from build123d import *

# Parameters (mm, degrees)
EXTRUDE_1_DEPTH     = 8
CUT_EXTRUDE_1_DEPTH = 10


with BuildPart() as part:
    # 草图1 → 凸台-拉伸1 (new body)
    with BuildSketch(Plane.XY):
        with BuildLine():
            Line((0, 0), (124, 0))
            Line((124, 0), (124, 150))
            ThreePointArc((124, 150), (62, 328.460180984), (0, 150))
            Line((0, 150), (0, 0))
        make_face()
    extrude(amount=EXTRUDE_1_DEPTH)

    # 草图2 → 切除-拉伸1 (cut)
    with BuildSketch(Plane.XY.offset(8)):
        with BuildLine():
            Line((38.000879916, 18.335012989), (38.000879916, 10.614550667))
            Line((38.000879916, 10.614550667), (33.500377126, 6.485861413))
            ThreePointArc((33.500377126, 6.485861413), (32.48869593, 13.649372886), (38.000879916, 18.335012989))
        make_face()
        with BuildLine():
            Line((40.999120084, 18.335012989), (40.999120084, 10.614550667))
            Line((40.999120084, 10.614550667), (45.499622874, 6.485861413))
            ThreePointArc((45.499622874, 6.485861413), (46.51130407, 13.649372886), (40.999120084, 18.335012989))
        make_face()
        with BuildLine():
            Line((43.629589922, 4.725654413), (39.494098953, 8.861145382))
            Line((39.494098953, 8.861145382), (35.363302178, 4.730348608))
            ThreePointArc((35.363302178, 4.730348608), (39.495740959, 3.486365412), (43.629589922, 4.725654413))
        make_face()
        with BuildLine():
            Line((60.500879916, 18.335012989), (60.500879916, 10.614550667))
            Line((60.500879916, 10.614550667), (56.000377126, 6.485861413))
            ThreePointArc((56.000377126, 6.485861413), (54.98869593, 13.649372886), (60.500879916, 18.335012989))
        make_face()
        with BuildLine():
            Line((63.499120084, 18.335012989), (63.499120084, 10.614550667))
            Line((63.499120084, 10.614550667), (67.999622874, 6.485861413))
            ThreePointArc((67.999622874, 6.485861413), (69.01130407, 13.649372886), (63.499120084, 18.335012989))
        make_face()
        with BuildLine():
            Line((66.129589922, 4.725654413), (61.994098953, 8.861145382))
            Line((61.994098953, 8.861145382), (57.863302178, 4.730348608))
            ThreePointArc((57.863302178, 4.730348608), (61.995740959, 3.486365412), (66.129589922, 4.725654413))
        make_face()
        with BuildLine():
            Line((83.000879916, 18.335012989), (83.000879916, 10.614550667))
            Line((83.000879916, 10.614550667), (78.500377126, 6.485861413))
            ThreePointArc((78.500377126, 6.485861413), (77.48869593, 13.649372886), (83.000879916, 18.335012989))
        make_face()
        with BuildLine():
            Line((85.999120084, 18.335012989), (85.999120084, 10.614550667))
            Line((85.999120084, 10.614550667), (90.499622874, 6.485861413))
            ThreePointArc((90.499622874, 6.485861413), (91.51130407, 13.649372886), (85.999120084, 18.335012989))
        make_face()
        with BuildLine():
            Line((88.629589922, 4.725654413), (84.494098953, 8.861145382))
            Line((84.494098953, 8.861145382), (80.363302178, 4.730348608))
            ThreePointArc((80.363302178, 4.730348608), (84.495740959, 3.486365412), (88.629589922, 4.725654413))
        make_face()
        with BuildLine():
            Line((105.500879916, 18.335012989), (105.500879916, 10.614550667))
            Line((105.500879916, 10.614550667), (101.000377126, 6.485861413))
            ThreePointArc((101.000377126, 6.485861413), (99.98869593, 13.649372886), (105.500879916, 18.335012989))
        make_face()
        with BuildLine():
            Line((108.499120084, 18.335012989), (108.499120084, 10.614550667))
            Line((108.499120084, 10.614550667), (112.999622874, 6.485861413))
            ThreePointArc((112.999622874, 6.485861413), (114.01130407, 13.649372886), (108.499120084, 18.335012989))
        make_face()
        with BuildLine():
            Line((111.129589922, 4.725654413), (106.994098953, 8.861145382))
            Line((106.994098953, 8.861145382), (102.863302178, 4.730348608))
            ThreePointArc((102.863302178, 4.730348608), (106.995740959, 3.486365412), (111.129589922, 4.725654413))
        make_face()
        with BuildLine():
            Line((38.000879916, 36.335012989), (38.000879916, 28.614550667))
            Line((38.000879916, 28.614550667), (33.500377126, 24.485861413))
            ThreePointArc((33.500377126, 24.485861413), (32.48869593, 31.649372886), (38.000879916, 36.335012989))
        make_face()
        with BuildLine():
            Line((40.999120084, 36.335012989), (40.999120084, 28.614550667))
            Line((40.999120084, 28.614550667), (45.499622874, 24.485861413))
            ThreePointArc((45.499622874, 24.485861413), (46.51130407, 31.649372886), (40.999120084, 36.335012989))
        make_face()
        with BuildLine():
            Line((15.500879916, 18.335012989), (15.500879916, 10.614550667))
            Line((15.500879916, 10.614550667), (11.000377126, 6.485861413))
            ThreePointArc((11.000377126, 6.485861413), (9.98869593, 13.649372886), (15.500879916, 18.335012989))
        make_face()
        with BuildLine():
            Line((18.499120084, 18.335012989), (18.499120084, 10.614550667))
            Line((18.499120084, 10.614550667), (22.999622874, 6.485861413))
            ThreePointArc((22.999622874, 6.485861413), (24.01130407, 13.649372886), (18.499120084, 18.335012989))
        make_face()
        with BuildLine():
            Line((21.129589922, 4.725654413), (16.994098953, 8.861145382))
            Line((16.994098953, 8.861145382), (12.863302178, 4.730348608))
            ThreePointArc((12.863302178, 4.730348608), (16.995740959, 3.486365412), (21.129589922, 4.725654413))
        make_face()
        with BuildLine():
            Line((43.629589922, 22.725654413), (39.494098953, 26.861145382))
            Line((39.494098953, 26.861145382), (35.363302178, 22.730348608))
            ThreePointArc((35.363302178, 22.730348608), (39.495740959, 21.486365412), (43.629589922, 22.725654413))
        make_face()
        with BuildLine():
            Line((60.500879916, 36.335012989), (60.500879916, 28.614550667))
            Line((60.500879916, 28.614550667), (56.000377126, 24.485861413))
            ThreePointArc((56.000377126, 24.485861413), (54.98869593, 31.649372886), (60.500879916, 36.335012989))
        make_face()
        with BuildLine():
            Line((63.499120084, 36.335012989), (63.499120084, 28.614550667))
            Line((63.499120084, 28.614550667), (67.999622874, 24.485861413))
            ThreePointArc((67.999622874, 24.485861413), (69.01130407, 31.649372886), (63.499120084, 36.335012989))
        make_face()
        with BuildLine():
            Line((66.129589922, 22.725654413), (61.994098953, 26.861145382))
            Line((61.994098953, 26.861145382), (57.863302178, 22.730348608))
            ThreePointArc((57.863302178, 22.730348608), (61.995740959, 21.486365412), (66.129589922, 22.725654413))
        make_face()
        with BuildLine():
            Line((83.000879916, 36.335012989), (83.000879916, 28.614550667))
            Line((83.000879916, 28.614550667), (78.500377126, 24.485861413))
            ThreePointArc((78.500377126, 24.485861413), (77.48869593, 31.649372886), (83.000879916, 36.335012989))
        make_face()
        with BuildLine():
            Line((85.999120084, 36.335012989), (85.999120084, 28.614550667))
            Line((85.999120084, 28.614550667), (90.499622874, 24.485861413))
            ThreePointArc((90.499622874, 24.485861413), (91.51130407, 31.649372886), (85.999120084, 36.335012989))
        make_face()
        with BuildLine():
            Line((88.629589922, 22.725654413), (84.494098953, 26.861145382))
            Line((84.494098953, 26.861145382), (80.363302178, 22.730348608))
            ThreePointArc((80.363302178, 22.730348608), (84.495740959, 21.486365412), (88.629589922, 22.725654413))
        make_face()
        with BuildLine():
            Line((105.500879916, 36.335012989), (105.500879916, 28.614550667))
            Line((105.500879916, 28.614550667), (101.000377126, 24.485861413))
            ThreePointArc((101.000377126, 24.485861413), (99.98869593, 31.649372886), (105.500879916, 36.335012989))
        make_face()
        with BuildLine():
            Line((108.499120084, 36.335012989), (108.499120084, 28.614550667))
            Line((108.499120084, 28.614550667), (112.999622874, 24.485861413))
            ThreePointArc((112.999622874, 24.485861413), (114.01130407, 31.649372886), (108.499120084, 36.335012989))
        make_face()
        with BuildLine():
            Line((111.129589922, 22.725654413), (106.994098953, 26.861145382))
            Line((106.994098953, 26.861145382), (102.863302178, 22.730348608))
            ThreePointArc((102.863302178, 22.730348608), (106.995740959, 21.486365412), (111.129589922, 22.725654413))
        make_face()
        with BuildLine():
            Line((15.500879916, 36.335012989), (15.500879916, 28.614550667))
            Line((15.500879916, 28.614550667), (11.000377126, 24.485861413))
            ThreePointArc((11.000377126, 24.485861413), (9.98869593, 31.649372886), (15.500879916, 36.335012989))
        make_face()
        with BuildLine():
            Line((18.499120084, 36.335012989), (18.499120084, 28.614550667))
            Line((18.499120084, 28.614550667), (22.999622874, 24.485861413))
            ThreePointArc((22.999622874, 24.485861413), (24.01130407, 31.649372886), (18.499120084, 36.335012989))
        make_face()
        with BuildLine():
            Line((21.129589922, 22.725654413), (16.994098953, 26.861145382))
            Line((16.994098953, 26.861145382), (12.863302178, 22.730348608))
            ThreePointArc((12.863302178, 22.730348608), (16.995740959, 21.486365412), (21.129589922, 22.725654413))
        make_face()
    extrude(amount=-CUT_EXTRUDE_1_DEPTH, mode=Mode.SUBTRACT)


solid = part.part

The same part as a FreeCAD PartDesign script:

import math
import FreeCAD as App
import Part
import Sketcher
from FreeCAD import Vector
Q = App.Units.Quantity

doc = App.newDocument("Part")
params = doc.addObject("Spreadsheet::Sheet", "Params")
for row, (alias, value) in enumerate([
    ("sketch1_radius", "100 mm"),
    ("sketch1_width", "124 mm"),
    ("sketch1_height", "150 mm"),
    ("pad1_length", "8 mm"),
    ("sketch2_radius", "7.5 mm"),
    ("pocket1_length", "10 mm"),
], start=1):
    params.set(f"A{row}", alias)
    params.set(f"B{row}", "=" + value)
    params.setAlias(f"B{row}", alias)

body = doc.addObject("PartDesign::Body", "Body")

# Sketch on XY plane
sketch1 = body.newObject("Sketcher::SketchObject", "Sketch")
sketch1.AttachmentSupport = (doc.getObject("XY_Plane"), [""])
sketch1.MapMode = "FlatFace"
sketch1.addGeometry([
    Part.LineSegment(Vector(0, 0, 0), Vector(124, 0, 0)),
    Part.LineSegment(Vector(124, 0, 0), Vector(124, 150, 0)),
    Part.ArcOfCircle(Part.Circle(Vector(62, 228.460181, 0), Vector(0, 0, 1), 100), math.radians(-51.683866), math.radians(231.683866)),
    Part.LineSegment(Vector(0, 150, 0), Vector(0, 0, 0)),
], False)
sketch1.addConstraint([
    Sketcher.Constraint("Coincident", 0, 2, 1, 1),
    Sketcher.Constraint("Coincident", 1, 2, 2, 1),
    Sketcher.Constraint("Coincident", 2, 2, 3, 1),
    Sketcher.Constraint("Coincident", 3, 2, 0, 1),
    Sketcher.Constraint("Horizontal", 0),
    Sketcher.Constraint("Vertical", 1),
    Sketcher.Constraint("Vertical", 3),
    Sketcher.Constraint("Coincident", 3, 2, -1, 1),
    Sketcher.Constraint("Horizontal", 1, 2, 2, 2),
    Sketcher.Constraint("Radius", 2, Q("100 mm")),
    Sketcher.Constraint("DistanceX", 0, 1, 0, 2, Q("124 mm")),
    Sketcher.Constraint("DistanceY", 1, 1, 1, 2, Q("150 mm")),
])
sketch1.setExpression("Constraints[9]", "Params.sketch1_radius")
sketch1.setExpression("Constraints[10]", "Params.sketch1_width")
sketch1.setExpression("Constraints[11]", "Params.sketch1_height")
pad1 = body.newObject("PartDesign::Pad", "Pad")
pad1.Profile = sketch1
pad1.setExpression("Length", "Params.pad1_length")

# Sketch on XY plane
sketch2 = body.newObject("Sketcher::SketchObject", "Sketch001")
sketch2.AttachmentSupport = (doc.getObject("XY_Plane"), [""])
sketch2.MapMode = "FlatFace"
sketch2.AttachmentOffset = App.Placement(Vector(0, 0, 8), App.Rotation())
sketch2.addGeometry([
    Part.LineSegment(Vector(38.00088, 10.614551, 0), Vector(38.00088, 18.335013, 0)),  # 0
    Part.ArcOfCircle(Part.Circle(Vector(39.5, 10.986364, 0), Vector(0, 0, 1), 7.5), math.radians(101.530098), math.radians(216.874699)),  # 1
    Part.LineSegment(Vector(33.500377, 6.485861, 0), Vector(38.00088, 10.614551, 0)),  # 2
    Part.LineSegment(Vector(40.99912, 18.335013, 0), Vector(40.99912, 10.614551, 0)),  # 3
    Part.LineSegment(Vector(40.99912, 10.614551, 0), Vector(45.499623, 6.485861, 0)),  # 4
    Part.ArcOfCircle(Part.Circle(Vector(39.5, 10.986364, 0), Vector(0, 0, 1), 7.5), math.radians(-36.874699), math.radians(78.469902)),  # 5
    Part.LineSegment(Vector(43.62959, 4.725654, 0), Vector(39.494099, 8.861145, 0)),  # 6
    Part.LineSegment(Vector(39.494099, 8.861145, 0), Vector(35.363302, 4.730349, 0)),  # 7
    Part.ArcOfCircle(Part.Circle(Vector(39.5, 10.986364, 0), Vector(0, 0, 1), 7.5), math.radians(-123.474082), math.radians(-56.590992)),  # 8
    Part.LineSegment(Vector(60.50088, 10.614551, 0), Vector(60.50088, 18.335013, 0)),  # 9
    Part.ArcOfCircle(Part.Circle(Vector(62, 10.986364, 0), Vector(0, 0, 1), 7.5), math.radians(101.530098), math.radians(216.874699)),  # 10
    Part.LineSegment(Vector(56.000377, 6.485861, 0), Vector(60.50088, 10.614551, 0)),  # 11
    Part.LineSegment(Vector(63.49912, 18.335013, 0), Vector(63.49912, 10.614551, 0)),  # 12
    Part.LineSegment(Vector(63.49912, 10.614551, 0), Vector(67.999623, 6.485861, 0)),  # 13
    Part.ArcOfCircle(Part.Circle(Vector(62, 10.986364, 0), Vector(0, 0, 1), 7.5), math.radians(-36.874699), math.radians(78.469902)),  # 14
    Part.LineSegment(Vector(66.12959, 4.725654, 0), Vector(61.994099, 8.861145, 0)),  # 15
    Part.LineSegment(Vector(61.994099, 8.861145, 0), Vector(57.863302, 4.730349, 0)),  # 16
    Part.ArcOfCircle(Part.Circle(Vector(62, 10.986364, 0), Vector(0, 0, 1), 7.5), math.radians(-123.474082), math.radians(-56.590992)),  # 17
    Part.LineSegment(Vector(83.00088, 10.614551, 0), Vector(83.00088, 18.335013, 0)),  # 18
    Part.ArcOfCircle(Part.Circle(Vector(84.5, 10.986364, 0), Vector(0, 0, 1), 7.5), math.radians(101.530098), math.radians(216.874699)),  # 19
    Part.LineSegment(Vector(78.500377, 6.485861, 0), Vector(83.00088, 10.614551, 0)),  # 20
    Part.LineSegment(Vector(85.99912, 18.335013, 0), Vector(85.99912, 10.614551, 0)),  # 21
    Part.LineSegment(Vector(85.99912, 10.614551, 0), Vector(90.499623, 6.485861, 0)),  # 22
    Part.ArcOfCircle(Part.Circle(Vector(84.5, 10.986364, 0), Vector(0, 0, 1), 7.5), math.radians(-36.874699), math.radians(78.469902)),  # 23
    Part.LineSegment(Vector(88.62959, 4.725654, 0), Vector(84.494099, 8.861145, 0)),  # 24
    Part.LineSegment(Vector(84.494099, 8.861145, 0), Vector(80.363302, 4.730349, 0)),  # 25
    Part.ArcOfCircle(Part.Circle(Vector(84.5, 10.986364, 0), Vector(0, 0, 1), 7.5), math.radians(-123.474082), math.radians(-56.590992)),  # 26
    Part.LineSegment(Vector(105.50088, 10.614551, 0), Vector(105.50088, 18.335013, 0)),  # 27
    Part.ArcOfCircle(Part.Circle(Vector(107, 10.986364, 0), Vector(0, 0, 1), 7.5), math.radians(101.530098), math.radians(216.874699)),  # 28
    Part.LineSegment(Vector(101.000377, 6.485861, 0), Vector(105.50088, 10.614551, 0)),  # 29
    Part.LineSegment(Vector(108.49912, 18.335013, 0), Vector(108.49912, 10.614551, 0)),  # 30
    Part.LineSegment(Vector(108.49912, 10.614551, 0), Vector(112.999623, 6.485861, 0)),  # 31
    Part.ArcOfCircle(Part.Circle(Vector(107, 10.986364, 0), Vector(0, 0, 1), 7.5), math.radians(-36.874699), math.radians(78.469902)),  # 32
    Part.LineSegment(Vector(111.12959, 4.725654, 0), Vector(106.994099, 8.861145, 0)),  # 33
    Part.LineSegment(Vector(106.994099, 8.861145, 0), Vector(102.863302, 4.730349, 0)),  # 34
    Part.ArcOfCircle(Part.Circle(Vector(107, 10.986364, 0), Vector(0, 0, 1), 7.5), math.radians(-123.474082), math.radians(-56.590992)),  # 35
    Part.LineSegment(Vector(38.00088, 28.614551, 0), Vector(38.00088, 36.335013, 0)),  # 36
    Part.ArcOfCircle(Part.Circle(Vector(39.5, 28.986364, 0), Vector(0, 0, 1), 7.5), math.radians(101.530098), math.radians(216.874699)),  # 37
    Part.LineSegment(Vector(33.500377, 24.485861, 0), Vector(38.00088, 28.614551, 0)),  # 38
    Part.LineSegment(Vector(40.99912, 36.335013, 0), Vector(40.99912, 28.614551, 0)),  # 39
    Part.LineSegment(Vector(40.99912, 28.614551, 0), Vector(45.499623, 24.485861, 0)),  # 40
    Part.ArcOfCircle(Part.Circle(Vector(39.5, 28.986364, 0), Vector(0, 0, 1), 7.5), math.radians(-36.874699), math.radians(78.469902)),  # 41
    Part.LineSegment(Vector(15.50088, 10.614551, 0), Vector(15.50088, 18.335013, 0)),  # 42
    Part.ArcOfCircle(Part.Circle(Vector(17, 10.986364, 0), Vector(0, 0, 1), 7.5), math.radians(101.530098), math.radians(216.874699)),  # 43
    Part.LineSegment(Vector(11.000377, 6.485861, 0), Vector(15.50088, 10.614551, 0)),  # 44
    Part.LineSegment(Vector(18.49912, 18.335013, 0), Vector(18.49912, 10.614551, 0)),  # 45
    Part.LineSegment(Vector(18.49912, 10.614551, 0), Vector(22.999623, 6.485861, 0)),  # 46
    Part.ArcOfCircle(Part.Circle(Vector(17, 10.986364, 0), Vector(0, 0, 1), 7.5), math.radians(-36.874699), math.radians(78.469902)),  # 47
    Part.LineSegment(Vector(21.12959, 4.725654, 0), Vector(16.994099, 8.861145, 0)),  # 48
    Part.LineSegment(Vector(16.994099, 8.861145, 0), Vector(12.863302, 4.730349, 0)),  # 49
    Part.ArcOfCircle(Part.Circle(Vector(17, 10.986364, 0), Vector(0, 0, 1), 7.5), math.radians(-123.474082), math.radians(-56.590992)),  # 50
    Part.LineSegment(Vector(43.62959, 22.725654, 0), Vector(39.494099, 26.861145, 0)),  # 51
    Part.LineSegment(Vector(39.494099, 26.861145, 0), Vector(35.363302, 22.730349, 0)),  # 52
    Part.ArcOfCircle(Part.Circle(Vector(39.5, 28.986364, 0), Vector(0, 0, 1), 7.5), math.radians(-123.474082), math.radians(-56.590992)),  # 53
    Part.LineSegment(Vector(60.50088, 28.614551, 0), Vector(60.50088, 36.335013, 0)),  # 54
    Part.ArcOfCircle(Part.Circle(Vector(62, 28.986364, 0), Vector(0, 0, 1), 7.5), math.radians(101.530098), math.radians(216.874699)),  # 55
    Part.LineSegment(Vector(56.000377, 24.485861, 0), Vector(60.50088, 28.614551, 0)),  # 56
    Part.LineSegment(Vector(63.49912, 36.335013, 0), Vector(63.49912, 28.614551, 0)),  # 57
    Part.LineSegment(Vector(63.49912, 28.614551, 0), Vector(67.999623, 24.485861, 0)),  # 58
    Part.ArcOfCircle(Part.Circle(Vector(62, 28.986364, 0), Vector(0, 0, 1), 7.5), math.radians(-36.874699), math.radians(78.469902)),  # 59
    Part.LineSegment(Vector(66.12959, 22.725654, 0), Vector(61.994099, 26.861145, 0)),  # 60
    Part.LineSegment(Vector(61.994099, 26.861145, 0), Vector(57.863302, 22.730349, 0)),  # 61
    Part.ArcOfCircle(Part.Circle(Vector(62, 28.986364, 0), Vector(0, 0, 1), 7.5), math.radians(-123.474082), math.radians(-56.590992)),  # 62
    Part.LineSegment(Vector(83.00088, 28.614551, 0), Vector(83.00088, 36.335013, 0)),  # 63
    Part.ArcOfCircle(Part.Circle(Vector(84.5, 28.986364, 0), Vector(0, 0, 1), 7.5), math.radians(101.530098), math.radians(216.874699)),  # 64
    Part.LineSegment(Vector(78.500377, 24.485861, 0), Vector(83.00088, 28.614551, 0)),  # 65
    Part.LineSegment(Vector(85.99912, 36.335013, 0), Vector(85.99912, 28.614551, 0)),  # 66
    Part.LineSegment(Vector(85.99912, 28.614551, 0), Vector(90.499623, 24.485861, 0)),  # 67
    Part.ArcOfCircle(Part.Circle(Vector(84.5, 28.986364, 0), Vector(0, 0, 1), 7.5), math.radians(-36.874699), math.radians(78.469902)),  # 68
    Part.LineSegment(Vector(88.62959, 22.725654, 0), Vector(84.494099, 26.861145, 0)),  # 69
    Part.LineSegment(Vector(84.494099, 26.861145, 0), Vector(80.363302, 22.730349, 0)),  # 70
    Part.ArcOfCircle(Part.Circle(Vector(84.5, 28.986364, 0), Vector(0, 0, 1), 7.5), math.radians(-123.474082), math.radians(-56.590992)),  # 71
    Part.LineSegment(Vector(105.50088, 28.614551, 0), Vector(105.50088, 36.335013, 0)),  # 72
    Part.ArcOfCircle(Part.Circle(Vector(107, 28.986364, 0), Vector(0, 0, 1), 7.5), math.radians(101.530098), math.radians(216.874699)),  # 73
    Part.LineSegment(Vector(101.000377, 24.485861, 0), Vector(105.50088, 28.614551, 0)),  # 74
    Part.LineSegment(Vector(108.49912, 36.335013, 0), Vector(108.49912, 28.614551, 0)),  # 75
    Part.LineSegment(Vector(108.49912, 28.614551, 0), Vector(112.999623, 24.485861, 0)),  # 76
    Part.ArcOfCircle(Part.Circle(Vector(107, 28.986364, 0), Vector(0, 0, 1), 7.5), math.radians(-36.874699), math.radians(78.469902)),  # 77
    Part.LineSegment(Vector(111.12959, 22.725654, 0), Vector(106.994099, 26.861145, 0)),  # 78
    Part.LineSegment(Vector(106.994099, 26.861145, 0), Vector(102.863302, 22.730349, 0)),  # 79
    Part.ArcOfCircle(Part.Circle(Vector(107, 28.986364, 0), Vector(0, 0, 1), 7.5), math.radians(-123.474082), math.radians(-56.590992)),  # 80
    Part.LineSegment(Vector(15.50088, 28.614551, 0), Vector(15.50088, 36.335013, 0)),  # 81
    Part.ArcOfCircle(Part.Circle(Vector(17, 28.986364, 0), Vector(0, 0, 1), 7.5), math.radians(101.530098), math.radians(216.874699)),  # 82
    Part.LineSegment(Vector(11.000377, 24.485861, 0), Vector(15.50088, 28.614551, 0)),  # 83
    Part.LineSegment(Vector(18.49912, 36.335013, 0), Vector(18.49912, 28.614551, 0)),  # 84
    Part.LineSegment(Vector(18.49912, 28.614551, 0), Vector(22.999623, 24.485861, 0)),  # 85
    Part.ArcOfCircle(Part.Circle(Vector(17, 28.986364, 0), Vector(0, 0, 1), 7.5), math.radians(-36.874699), math.radians(78.469902)),  # 86
    Part.LineSegment(Vector(21.12959, 22.725654, 0), Vector(16.994099, 26.861145, 0)),  # 87
    Part.LineSegment(Vector(16.994099, 26.861145, 0), Vector(12.863302, 22.730349, 0)),  # 88
    Part.ArcOfCircle(Part.Circle(Vector(17, 28.986364, 0), Vector(0, 0, 1), 7.5), math.radians(-123.474082), math.radians(-56.590992)),  # 89
], False)
sketch2.addConstraint([
    Sketcher.Constraint("Coincident", 0, 2, 1, 1),
    Sketcher.Constraint("Coincident", 1, 2, 2, 1),
    Sketcher.Constraint("Coincident", 2, 2, 0, 1),
    Sketcher.Constraint("Coincident", 3, 2, 4, 1),
    Sketcher.Constraint("Coincident", 4, 2, 5, 1),
    Sketcher.Constraint("Coincident", 5, 2, 3, 1),
    Sketcher.Constraint("Coincident", 6, 2, 7, 1),
    Sketcher.Constraint("Coincident", 7, 2, 8, 1),
    Sketcher.Constraint("Coincident", 8, 2, 6, 1),
    Sketcher.Constraint("Coincident", 9, 2, 10, 1),
    Sketcher.Constraint("Coincident", 10, 2, 11, 1),
    Sketcher.Constraint("Coincident", 11, 2, 9, 1),
    Sketcher.Constraint("Coincident", 12, 2, 13, 1),
    Sketcher.Constraint("Coincident", 13, 2, 14, 1),
    Sketcher.Constraint("Coincident", 14, 2, 12, 1),
    Sketcher.Constraint("Coincident", 15, 2, 16, 1),
    Sketcher.Constraint("Coincident", 16, 2, 17, 1),
    Sketcher.Constraint("Coincident", 17, 2, 15, 1),
    Sketcher.Constraint("Coincident", 18, 2, 19, 1),
    Sketcher.Constraint("Coincident", 19, 2, 20, 1),
    Sketcher.Constraint("Coincident", 20, 2, 18, 1),
    Sketcher.Constraint("Coincident", 21, 2, 22, 1),
    Sketcher.Constraint("Coincident", 22, 2, 23, 1),
    Sketcher.Constraint("Coincident", 23, 2, 21, 1),
    Sketcher.Constraint("Coincident", 24, 2, 25, 1),
    Sketcher.Constraint("Coincident", 25, 2, 26, 1),
    Sketcher.Constraint("Coincident", 26, 2, 24, 1),
    Sketcher.Constraint("Coincident", 27, 2, 28, 1),
    Sketcher.Constraint("Coincident", 28, 2, 29, 1),
    Sketcher.Constraint("Coincident", 29, 2, 27, 1),
    Sketcher.Constraint("Coincident", 30, 2, 31, 1),
    Sketcher.Constraint("Coincident", 31, 2, 32, 1),
    Sketcher.Constraint("Coincident", 32, 2, 30, 1),
    Sketcher.Constraint("Coincident", 33, 2, 34, 1),
    Sketcher.Constraint("Coincident", 34, 2, 35, 1),
    Sketcher.Constraint("Coincident", 35, 2, 33, 1),
    Sketcher.Constraint("Coincident", 36, 2, 37, 1),
    Sketcher.Constraint("Coincident", 37, 2, 38, 1),
    Sketcher.Constraint("Coincident", 38, 2, 36, 1),
    Sketcher.Constraint("Coincident", 39, 2, 40, 1),
    Sketcher.Constraint("Coincident", 40, 2, 41, 1),
    Sketcher.Constraint("Coincident", 41, 2, 39, 1),
    Sketcher.Constraint("Coincident", 42, 2, 43, 1),
    Sketcher.Constraint("Coincident", 43, 2, 44, 1),
    Sketcher.Constraint("Coincident", 44, 2, 42, 1),
    Sketcher.Constraint("Coincident", 45, 2, 46, 1),
    Sketcher.Constraint("Coincident", 46, 2, 47, 1),
    Sketcher.Constraint("Coincident", 47, 2, 45, 1),
    Sketcher.Constraint("Coincident", 48, 2, 49, 1),
    Sketcher.Constraint("Coincident", 49, 2, 50, 1),
    Sketcher.Constraint("Coincident", 50, 2, 48, 1),
    Sketcher.Constraint("Coincident", 51, 2, 52, 1),
    Sketcher.Constraint("Coincident", 52, 2, 53, 1),
    Sketcher.Constraint("Coincident", 53, 2, 51, 1),
    Sketcher.Constraint("Coincident", 54, 2, 55, 1),
    Sketcher.Constraint("Coincident", 55, 2, 56, 1),
    Sketcher.Constraint("Coincident", 56, 2, 54, 1),
    Sketcher.Constraint("Coincident", 57, 2, 58, 1),
    Sketcher.Constraint("Coincident", 58, 2, 59, 1),
    Sketcher.Constraint("Coincident", 59, 2, 57, 1),
    Sketcher.Constraint("Coincident", 60, 2, 61, 1),
    Sketcher.Constraint("Coincident", 61, 2, 62, 1),
    Sketcher.Constraint("Coincident", 62, 2, 60, 1),
    Sketcher.Constraint("Coincident", 63, 2, 64, 1),
    Sketcher.Constraint("Coincident", 64, 2, 65, 1),
    Sketcher.Constraint("Coincident", 65, 2, 63, 1),
    Sketcher.Constraint("Coincident", 66, 2, 67, 1),
    Sketcher.Constraint("Coincident", 67, 2, 68, 1),
    Sketcher.Constraint("Coincident", 68, 2, 66, 1),
    Sketcher.Constraint("Coincident", 69, 2, 70, 1),
    Sketcher.Constraint("Coincident", 70, 2, 71, 1),
    Sketcher.Constraint("Coincident", 71, 2, 69, 1),
    Sketcher.Constraint("Coincident", 72, 2, 73, 1),
    Sketcher.Constraint("Coincident", 73, 2, 74, 1),
    Sketcher.Constraint("Coincident", 74, 2, 72, 1),
    Sketcher.Constraint("Coincident", 75, 2, 76, 1),
    Sketcher.Constraint("Coincident", 76, 2, 77, 1),
    Sketcher.Constraint("Coincident", 77, 2, 75, 1),
    Sketcher.Constraint("Coincident", 78, 2, 79, 1),
    Sketcher.Constraint("Coincident", 79, 2, 80, 1),
    Sketcher.Constraint("Coincident", 80, 2, 78, 1),
    Sketcher.Constraint("Coincident", 81, 2, 82, 1),
    Sketcher.Constraint("Coincident", 82, 2, 83, 1),
    Sketcher.Constraint("Coincident", 83, 2, 81, 1),
    Sketcher.Constraint("Coincident", 84, 2, 85, 1),
    Sketcher.Constraint("Coincident", 85, 2, 86, 1),
    Sketcher.Constraint("Coincident", 86, 2, 84, 1),
    Sketcher.Constraint("Coincident", 87, 2, 88, 1),
    Sketcher.Constraint("Coincident", 88, 2, 89, 1),
    Sketcher.Constraint("Coincident", 89, 2, 87, 1),
    Sketcher.Constraint("Vertical", 0),
    Sketcher.Constraint("Vertical", 3),
    Sketcher.Constraint("Vertical", 9),
    Sketcher.Constraint("Vertical", 12),
    Sketcher.Constraint("Vertical", 18),
    Sketcher.Constraint("Vertical", 21),
    Sketcher.Constraint("Vertical", 27),
    Sketcher.Constraint("Vertical", 30),
    Sketcher.Constraint("Vertical", 36),
    Sketcher.Constraint("Vertical", 39),
    Sketcher.Constraint("Vertical", 42),
    Sketcher.Constraint("Vertical", 45),
    Sketcher.Constraint("Vertical", 54),
    Sketcher.Constraint("Vertical", 57),
    Sketcher.Constraint("Vertical", 63),
    Sketcher.Constraint("Vertical", 66),
    Sketcher.Constraint("Vertical", 72),
    Sketcher.Constraint("Vertical", 75),
    Sketcher.Constraint("Vertical", 81),
    Sketcher.Constraint("Vertical", 84),
    Sketcher.Constraint("Coincident", 5, 3, 1, 3),
    Sketcher.Constraint("Coincident", 8, 3, 1, 3),
    Sketcher.Constraint("Coincident", 14, 3, 10, 3),
    Sketcher.Constraint("Coincident", 17, 3, 10, 3),
    Sketcher.Constraint("Coincident", 23, 3, 19, 3),
    Sketcher.Constraint("Coincident", 26, 3, 19, 3),
    Sketcher.Constraint("Coincident", 32, 3, 28, 3),
    Sketcher.Constraint("Coincident", 35, 3, 28, 3),
    Sketcher.Constraint("Coincident", 41, 3, 37, 3),
    Sketcher.Constraint("Coincident", 47, 3, 43, 3),
    Sketcher.Constraint("Coincident", 50, 3, 43, 3),
    Sketcher.Constraint("Coincident", 53, 3, 37, 3),
    Sketcher.Constraint("Coincident", 59, 3, 55, 3),
    Sketcher.Constraint("Coincident", 62, 3, 55, 3),
    Sketcher.Constraint("Coincident", 68, 3, 64, 3),
    Sketcher.Constraint("Coincident", 71, 3, 64, 3),
    Sketcher.Constraint("Coincident", 77, 3, 73, 3),
    Sketcher.Constraint("Coincident", 80, 3, 73, 3),
    Sketcher.Constraint("Coincident", 86, 3, 82, 3),
    Sketcher.Constraint("Coincident", 89, 3, 82, 3),
    Sketcher.Constraint("Equal", 1, 5),
    Sketcher.Constraint("Equal", 5, 8),
    Sketcher.Constraint("Equal", 8, 10),
    Sketcher.Constraint("Equal", 10, 14),
    Sketcher.Constraint("Equal", 14, 17),
    Sketcher.Constraint("Equal", 17, 19),
    Sketcher.Constraint("Equal", 19, 23),
    Sketcher.Constraint("Equal", 23, 26),
    Sketcher.Constraint("Equal", 26, 28),
    Sketcher.Constraint("Equal", 28, 32),
    Sketcher.Constraint("Equal", 32, 35),
    Sketcher.Constraint("Equal", 35, 37),
    Sketcher.Constraint("Equal", 37, 41),
    Sketcher.Constraint("Equal", 41, 43),
    Sketcher.Constraint("Equal", 43, 47),
    Sketcher.Constraint("Equal", 47, 50),
    Sketcher.Constraint("Equal", 50, 53),
    Sketcher.Constraint("Equal", 53, 55),
    Sketcher.Constraint("Equal", 55, 59),
    Sketcher.Constraint("Equal", 59, 62),
    Sketcher.Constraint("Equal", 62, 64),
    Sketcher.Constraint("Equal", 64, 68),
    Sketcher.Constraint("Equal", 68, 71),
    Sketcher.Constraint("Equal", 71, 73),
    Sketcher.Constraint("Equal", 73, 77),
    Sketcher.Constraint("Equal", 77, 80),
    Sketcher.Constraint("Equal", 80, 82),
    Sketcher.Constraint("Equal", 82, 86),
    Sketcher.Constraint("Equal", 86, 89),
    Sketcher.Constraint("Perpendicular", 6, 7),
    Sketcher.Constraint("Parallel", 2, 11),
    Sketcher.Constraint("Parallel", 4, 13),
    Sketcher.Constraint("Perpendicular", 7, 15),
    Sketcher.Constraint("Perpendicular", 15, 16),
    Sketcher.Constraint("Parallel", 11, 20),
    Sketcher.Constraint("Parallel", 13, 22),
    Sketcher.Constraint("Perpendicular", 16, 24),
    Sketcher.Constraint("Perpendicular", 24, 25),
    Sketcher.Constraint("Parallel", 20, 29),
    Sketcher.Constraint("Parallel", 22, 31),
    Sketcher.Constraint("Perpendicular", 25, 33),
    Sketcher.Constraint("Perpendicular", 33, 34),
    Sketcher.Constraint("Parallel", 29, 38),
    Sketcher.Constraint("Parallel", 31, 40),
    Sketcher.Constraint("Parallel", 38, 44),
    Sketcher.Constraint("Parallel", 40, 46),
    Sketcher.Constraint("Perpendicular", 34, 48),
    Sketcher.Constraint("Perpendicular", 48, 49),
    Sketcher.Constraint("Perpendicular", 49, 51),
    Sketcher.Constraint("Perpendicular", 51, 52),
    Sketcher.Constraint("Parallel", 44, 56),
    Sketcher.Constraint("Parallel", 46, 58),
    Sketcher.Constraint("Perpendicular", 52, 60),
    Sketcher.Constraint("Perpendicular", 60, 61),
    Sketcher.Constraint("Parallel", 56, 65),
    Sketcher.Constraint("Parallel", 58, 67),
    Sketcher.Constraint("Perpendicular", 61, 69),
    Sketcher.Constraint("Perpendicular", 69, 70),
    Sketcher.Constraint("Parallel", 65, 74),
    Sketcher.Constraint("Parallel", 67, 76),
    Sketcher.Constraint("Perpendicular", 70, 78),
    Sketcher.Constraint("Perpendicular", 78, 79),
    Sketcher.Constraint("Parallel", 74, 83),
    Sketcher.Constraint("Parallel", 76, 85),
    Sketcher.Constraint("Perpendicular", 79, 87),
    Sketcher.Constraint("Perpendicular", 87, 88),
    Sketcher.Constraint("Horizontal", 8, 3, 10, 3),
    Sketcher.Constraint("Horizontal", 17, 3, 19, 3),
    Sketcher.Constraint("Horizontal", 26, 3, 28, 3),
    Sketcher.Constraint("Horizontal", 35, 3, 43, 3),
    Sketcher.Constraint("Horizontal", 53, 3, 55, 3),
    Sketcher.Constraint("Horizontal", 62, 3, 64, 3),
    Sketcher.Constraint("Horizontal", 71, 3, 73, 3),
    Sketcher.Constraint("Horizontal", 80, 3, 82, 3),
    Sketcher.Constraint("Horizontal", 2, 2, 3, 2),
    Sketcher.Constraint("Horizontal", 1, 2, 4, 2),
    Sketcher.Constraint("Horizontal", 0, 2, 5, 2),
    Sketcher.Constraint("Horizontal", 5, 2, 9, 2),
    Sketcher.Constraint("Horizontal", 4, 2, 10, 2),
    Sketcher.Constraint("Horizontal", 11, 2, 12, 2),
    Sketcher.Constraint("Horizontal", 10, 2, 13, 2),
    Sketcher.Constraint("Horizontal", 6, 2, 15, 2),
    Sketcher.Constraint("Horizontal", 7, 2, 16, 2),
    Sketcher.Constraint("Horizontal", 14, 2, 18, 2),
    Sketcher.Constraint("Horizontal", 13, 2, 19, 2),
    Sketcher.Constraint("Horizontal", 20, 2, 21, 2),
    Sketcher.Constraint("Horizontal", 19, 2, 22, 2),
    Sketcher.Constraint("Horizontal", 15, 2, 24, 2),
    Sketcher.Constraint("Horizontal", 16, 2, 25, 2),
    Sketcher.Constraint("Horizontal", 23, 2, 27, 2),
    Sketcher.Constraint("Horizontal", 22, 2, 28, 2),
    Sketcher.Constraint("Horizontal", 29, 2, 30, 2),
    Sketcher.Constraint("Horizontal", 28, 2, 31, 2),
    Sketcher.Constraint("Horizontal", 24, 2, 33, 2),
    Sketcher.Constraint("Horizontal", 25, 2, 34, 2),
    Sketcher.Constraint("Horizontal", 38, 2, 39, 2),
    Sketcher.Constraint("Horizontal", 37, 2, 40, 2),
    Sketcher.Constraint("Horizontal", 32, 2, 42, 2),
    Sketcher.Constraint("Horizontal", 31, 2, 43, 2),
    Sketcher.Constraint("Horizontal", 44, 2, 45, 2),
    Sketcher.Constraint("Horizontal", 43, 2, 46, 2),
    Sketcher.Constraint("Horizontal", 33, 2, 48, 2),
    Sketcher.Constraint("Horizontal", 34, 2, 49, 2),
    Sketcher.Constraint("Horizontal", 41, 2, 54, 2),
    Sketcher.Constraint("Horizontal", 40, 2, 55, 2),
    Sketcher.Constraint("Horizontal", 56, 2, 57, 2),
    Sketcher.Constraint("Horizontal", 55, 2, 58, 2),
    Sketcher.Constraint("Horizontal", 51, 2, 60, 2),
    Sketcher.Constraint("Horizontal", 52, 2, 61, 2),
    Sketcher.Constraint("Horizontal", 59, 2, 63, 2),
    Sketcher.Constraint("Horizontal", 58, 2, 64, 2),
    Sketcher.Constraint("Horizontal", 65, 2, 66, 2),
    Sketcher.Constraint("Horizontal", 64, 2, 67, 2),
    Sketcher.Constraint("Horizontal", 60, 2, 69, 2),
    Sketcher.Constraint("Horizontal", 61, 2, 70, 2),
    Sketcher.Constraint("Horizontal", 68, 2, 72, 2),
    Sketcher.Constraint("Horizontal", 67, 2, 73, 2),
    Sketcher.Constraint("Horizontal", 74, 2, 75, 2),
    Sketcher.Constraint("Horizontal", 73, 2, 76, 2),
    Sketcher.Constraint("Horizontal", 69, 2, 78, 2),
    Sketcher.Constraint("Horizontal", 70, 2, 79, 2),
    Sketcher.Constraint("Horizontal", 77, 2, 81, 2),
    Sketcher.Constraint("Horizontal", 76, 2, 82, 2),
    Sketcher.Constraint("Horizontal", 83, 2, 84, 2),
    Sketcher.Constraint("Horizontal", 82, 2, 85, 2),
    Sketcher.Constraint("Horizontal", 78, 2, 87, 2),
    Sketcher.Constraint("Horizontal", 79, 2, 88, 2),
    Sketcher.Constraint("Vertical", 8, 3, 37, 3),
    Sketcher.Constraint("Vertical", 17, 3, 55, 3),
    Sketcher.Constraint("Vertical", 26, 3, 64, 3),
    Sketcher.Constraint("Vertical", 35, 3, 73, 3),
    Sketcher.Constraint("Vertical", 50, 3, 82, 3),
    Sketcher.Constraint("Vertical", 2, 2, 36, 2),
    Sketcher.Constraint("Vertical", 1, 2, 37, 2),
    Sketcher.Constraint("Vertical", 6, 2, 51, 2),
    Sketcher.Constraint("Vertical", 7, 2, 52, 2),
    Sketcher.Constraint("Radius", 1, Q("7.5 mm")),
    Sketcher.Constraint("Angle", 6, Q("135 deg")),
    Sketcher.Constraint("DistanceX", -1, 1, 10, 3, Q("62 mm")),
    Sketcher.Constraint("DistanceX", -1, 1, 28, 3, Q("107 mm")),
    Sketcher.Constraint("DistanceX", -1, 1, 43, 3, Q("17 mm")),
    Sketcher.Constraint("DistanceX", -1, 1, 1, 3, Q("39.5 mm")),
    Sketcher.Constraint("DistanceX", -1, 1, 19, 3, Q("84.5 mm")),
    Sketcher.Constraint("DistanceX", -1, 1, 6, 2, Q("39.494099 mm")),
    Sketcher.Constraint("Distance", 2, Q("6.107422 mm")),
    Sketcher.Constraint("Distance", 7, Q("5.841829 mm")),
    Sketcher.Constraint("DistanceY", 0, 1, 0, 2, Q("7.720462 mm")),
    Sketcher.Constraint("DistanceX", -1, 1, 0, 2, Q("38.00088 mm")),
    Sketcher.Constraint("DistanceY", -1, 1, 1, 2, Q("6.485861 mm")),
    Sketcher.Constraint("DistanceY", -1, 1, 37, 2, Q("24.485861 mm")),
])
sketch2.setExpression("Constraints[266]", "Params.sketch2_radius")
pocket1 = body.newObject("PartDesign::Pocket", "Pocket")
pocket1.Profile = sketch2
pocket1.setExpression("Length", "Params.pocket1_length")

doc.recompute()
